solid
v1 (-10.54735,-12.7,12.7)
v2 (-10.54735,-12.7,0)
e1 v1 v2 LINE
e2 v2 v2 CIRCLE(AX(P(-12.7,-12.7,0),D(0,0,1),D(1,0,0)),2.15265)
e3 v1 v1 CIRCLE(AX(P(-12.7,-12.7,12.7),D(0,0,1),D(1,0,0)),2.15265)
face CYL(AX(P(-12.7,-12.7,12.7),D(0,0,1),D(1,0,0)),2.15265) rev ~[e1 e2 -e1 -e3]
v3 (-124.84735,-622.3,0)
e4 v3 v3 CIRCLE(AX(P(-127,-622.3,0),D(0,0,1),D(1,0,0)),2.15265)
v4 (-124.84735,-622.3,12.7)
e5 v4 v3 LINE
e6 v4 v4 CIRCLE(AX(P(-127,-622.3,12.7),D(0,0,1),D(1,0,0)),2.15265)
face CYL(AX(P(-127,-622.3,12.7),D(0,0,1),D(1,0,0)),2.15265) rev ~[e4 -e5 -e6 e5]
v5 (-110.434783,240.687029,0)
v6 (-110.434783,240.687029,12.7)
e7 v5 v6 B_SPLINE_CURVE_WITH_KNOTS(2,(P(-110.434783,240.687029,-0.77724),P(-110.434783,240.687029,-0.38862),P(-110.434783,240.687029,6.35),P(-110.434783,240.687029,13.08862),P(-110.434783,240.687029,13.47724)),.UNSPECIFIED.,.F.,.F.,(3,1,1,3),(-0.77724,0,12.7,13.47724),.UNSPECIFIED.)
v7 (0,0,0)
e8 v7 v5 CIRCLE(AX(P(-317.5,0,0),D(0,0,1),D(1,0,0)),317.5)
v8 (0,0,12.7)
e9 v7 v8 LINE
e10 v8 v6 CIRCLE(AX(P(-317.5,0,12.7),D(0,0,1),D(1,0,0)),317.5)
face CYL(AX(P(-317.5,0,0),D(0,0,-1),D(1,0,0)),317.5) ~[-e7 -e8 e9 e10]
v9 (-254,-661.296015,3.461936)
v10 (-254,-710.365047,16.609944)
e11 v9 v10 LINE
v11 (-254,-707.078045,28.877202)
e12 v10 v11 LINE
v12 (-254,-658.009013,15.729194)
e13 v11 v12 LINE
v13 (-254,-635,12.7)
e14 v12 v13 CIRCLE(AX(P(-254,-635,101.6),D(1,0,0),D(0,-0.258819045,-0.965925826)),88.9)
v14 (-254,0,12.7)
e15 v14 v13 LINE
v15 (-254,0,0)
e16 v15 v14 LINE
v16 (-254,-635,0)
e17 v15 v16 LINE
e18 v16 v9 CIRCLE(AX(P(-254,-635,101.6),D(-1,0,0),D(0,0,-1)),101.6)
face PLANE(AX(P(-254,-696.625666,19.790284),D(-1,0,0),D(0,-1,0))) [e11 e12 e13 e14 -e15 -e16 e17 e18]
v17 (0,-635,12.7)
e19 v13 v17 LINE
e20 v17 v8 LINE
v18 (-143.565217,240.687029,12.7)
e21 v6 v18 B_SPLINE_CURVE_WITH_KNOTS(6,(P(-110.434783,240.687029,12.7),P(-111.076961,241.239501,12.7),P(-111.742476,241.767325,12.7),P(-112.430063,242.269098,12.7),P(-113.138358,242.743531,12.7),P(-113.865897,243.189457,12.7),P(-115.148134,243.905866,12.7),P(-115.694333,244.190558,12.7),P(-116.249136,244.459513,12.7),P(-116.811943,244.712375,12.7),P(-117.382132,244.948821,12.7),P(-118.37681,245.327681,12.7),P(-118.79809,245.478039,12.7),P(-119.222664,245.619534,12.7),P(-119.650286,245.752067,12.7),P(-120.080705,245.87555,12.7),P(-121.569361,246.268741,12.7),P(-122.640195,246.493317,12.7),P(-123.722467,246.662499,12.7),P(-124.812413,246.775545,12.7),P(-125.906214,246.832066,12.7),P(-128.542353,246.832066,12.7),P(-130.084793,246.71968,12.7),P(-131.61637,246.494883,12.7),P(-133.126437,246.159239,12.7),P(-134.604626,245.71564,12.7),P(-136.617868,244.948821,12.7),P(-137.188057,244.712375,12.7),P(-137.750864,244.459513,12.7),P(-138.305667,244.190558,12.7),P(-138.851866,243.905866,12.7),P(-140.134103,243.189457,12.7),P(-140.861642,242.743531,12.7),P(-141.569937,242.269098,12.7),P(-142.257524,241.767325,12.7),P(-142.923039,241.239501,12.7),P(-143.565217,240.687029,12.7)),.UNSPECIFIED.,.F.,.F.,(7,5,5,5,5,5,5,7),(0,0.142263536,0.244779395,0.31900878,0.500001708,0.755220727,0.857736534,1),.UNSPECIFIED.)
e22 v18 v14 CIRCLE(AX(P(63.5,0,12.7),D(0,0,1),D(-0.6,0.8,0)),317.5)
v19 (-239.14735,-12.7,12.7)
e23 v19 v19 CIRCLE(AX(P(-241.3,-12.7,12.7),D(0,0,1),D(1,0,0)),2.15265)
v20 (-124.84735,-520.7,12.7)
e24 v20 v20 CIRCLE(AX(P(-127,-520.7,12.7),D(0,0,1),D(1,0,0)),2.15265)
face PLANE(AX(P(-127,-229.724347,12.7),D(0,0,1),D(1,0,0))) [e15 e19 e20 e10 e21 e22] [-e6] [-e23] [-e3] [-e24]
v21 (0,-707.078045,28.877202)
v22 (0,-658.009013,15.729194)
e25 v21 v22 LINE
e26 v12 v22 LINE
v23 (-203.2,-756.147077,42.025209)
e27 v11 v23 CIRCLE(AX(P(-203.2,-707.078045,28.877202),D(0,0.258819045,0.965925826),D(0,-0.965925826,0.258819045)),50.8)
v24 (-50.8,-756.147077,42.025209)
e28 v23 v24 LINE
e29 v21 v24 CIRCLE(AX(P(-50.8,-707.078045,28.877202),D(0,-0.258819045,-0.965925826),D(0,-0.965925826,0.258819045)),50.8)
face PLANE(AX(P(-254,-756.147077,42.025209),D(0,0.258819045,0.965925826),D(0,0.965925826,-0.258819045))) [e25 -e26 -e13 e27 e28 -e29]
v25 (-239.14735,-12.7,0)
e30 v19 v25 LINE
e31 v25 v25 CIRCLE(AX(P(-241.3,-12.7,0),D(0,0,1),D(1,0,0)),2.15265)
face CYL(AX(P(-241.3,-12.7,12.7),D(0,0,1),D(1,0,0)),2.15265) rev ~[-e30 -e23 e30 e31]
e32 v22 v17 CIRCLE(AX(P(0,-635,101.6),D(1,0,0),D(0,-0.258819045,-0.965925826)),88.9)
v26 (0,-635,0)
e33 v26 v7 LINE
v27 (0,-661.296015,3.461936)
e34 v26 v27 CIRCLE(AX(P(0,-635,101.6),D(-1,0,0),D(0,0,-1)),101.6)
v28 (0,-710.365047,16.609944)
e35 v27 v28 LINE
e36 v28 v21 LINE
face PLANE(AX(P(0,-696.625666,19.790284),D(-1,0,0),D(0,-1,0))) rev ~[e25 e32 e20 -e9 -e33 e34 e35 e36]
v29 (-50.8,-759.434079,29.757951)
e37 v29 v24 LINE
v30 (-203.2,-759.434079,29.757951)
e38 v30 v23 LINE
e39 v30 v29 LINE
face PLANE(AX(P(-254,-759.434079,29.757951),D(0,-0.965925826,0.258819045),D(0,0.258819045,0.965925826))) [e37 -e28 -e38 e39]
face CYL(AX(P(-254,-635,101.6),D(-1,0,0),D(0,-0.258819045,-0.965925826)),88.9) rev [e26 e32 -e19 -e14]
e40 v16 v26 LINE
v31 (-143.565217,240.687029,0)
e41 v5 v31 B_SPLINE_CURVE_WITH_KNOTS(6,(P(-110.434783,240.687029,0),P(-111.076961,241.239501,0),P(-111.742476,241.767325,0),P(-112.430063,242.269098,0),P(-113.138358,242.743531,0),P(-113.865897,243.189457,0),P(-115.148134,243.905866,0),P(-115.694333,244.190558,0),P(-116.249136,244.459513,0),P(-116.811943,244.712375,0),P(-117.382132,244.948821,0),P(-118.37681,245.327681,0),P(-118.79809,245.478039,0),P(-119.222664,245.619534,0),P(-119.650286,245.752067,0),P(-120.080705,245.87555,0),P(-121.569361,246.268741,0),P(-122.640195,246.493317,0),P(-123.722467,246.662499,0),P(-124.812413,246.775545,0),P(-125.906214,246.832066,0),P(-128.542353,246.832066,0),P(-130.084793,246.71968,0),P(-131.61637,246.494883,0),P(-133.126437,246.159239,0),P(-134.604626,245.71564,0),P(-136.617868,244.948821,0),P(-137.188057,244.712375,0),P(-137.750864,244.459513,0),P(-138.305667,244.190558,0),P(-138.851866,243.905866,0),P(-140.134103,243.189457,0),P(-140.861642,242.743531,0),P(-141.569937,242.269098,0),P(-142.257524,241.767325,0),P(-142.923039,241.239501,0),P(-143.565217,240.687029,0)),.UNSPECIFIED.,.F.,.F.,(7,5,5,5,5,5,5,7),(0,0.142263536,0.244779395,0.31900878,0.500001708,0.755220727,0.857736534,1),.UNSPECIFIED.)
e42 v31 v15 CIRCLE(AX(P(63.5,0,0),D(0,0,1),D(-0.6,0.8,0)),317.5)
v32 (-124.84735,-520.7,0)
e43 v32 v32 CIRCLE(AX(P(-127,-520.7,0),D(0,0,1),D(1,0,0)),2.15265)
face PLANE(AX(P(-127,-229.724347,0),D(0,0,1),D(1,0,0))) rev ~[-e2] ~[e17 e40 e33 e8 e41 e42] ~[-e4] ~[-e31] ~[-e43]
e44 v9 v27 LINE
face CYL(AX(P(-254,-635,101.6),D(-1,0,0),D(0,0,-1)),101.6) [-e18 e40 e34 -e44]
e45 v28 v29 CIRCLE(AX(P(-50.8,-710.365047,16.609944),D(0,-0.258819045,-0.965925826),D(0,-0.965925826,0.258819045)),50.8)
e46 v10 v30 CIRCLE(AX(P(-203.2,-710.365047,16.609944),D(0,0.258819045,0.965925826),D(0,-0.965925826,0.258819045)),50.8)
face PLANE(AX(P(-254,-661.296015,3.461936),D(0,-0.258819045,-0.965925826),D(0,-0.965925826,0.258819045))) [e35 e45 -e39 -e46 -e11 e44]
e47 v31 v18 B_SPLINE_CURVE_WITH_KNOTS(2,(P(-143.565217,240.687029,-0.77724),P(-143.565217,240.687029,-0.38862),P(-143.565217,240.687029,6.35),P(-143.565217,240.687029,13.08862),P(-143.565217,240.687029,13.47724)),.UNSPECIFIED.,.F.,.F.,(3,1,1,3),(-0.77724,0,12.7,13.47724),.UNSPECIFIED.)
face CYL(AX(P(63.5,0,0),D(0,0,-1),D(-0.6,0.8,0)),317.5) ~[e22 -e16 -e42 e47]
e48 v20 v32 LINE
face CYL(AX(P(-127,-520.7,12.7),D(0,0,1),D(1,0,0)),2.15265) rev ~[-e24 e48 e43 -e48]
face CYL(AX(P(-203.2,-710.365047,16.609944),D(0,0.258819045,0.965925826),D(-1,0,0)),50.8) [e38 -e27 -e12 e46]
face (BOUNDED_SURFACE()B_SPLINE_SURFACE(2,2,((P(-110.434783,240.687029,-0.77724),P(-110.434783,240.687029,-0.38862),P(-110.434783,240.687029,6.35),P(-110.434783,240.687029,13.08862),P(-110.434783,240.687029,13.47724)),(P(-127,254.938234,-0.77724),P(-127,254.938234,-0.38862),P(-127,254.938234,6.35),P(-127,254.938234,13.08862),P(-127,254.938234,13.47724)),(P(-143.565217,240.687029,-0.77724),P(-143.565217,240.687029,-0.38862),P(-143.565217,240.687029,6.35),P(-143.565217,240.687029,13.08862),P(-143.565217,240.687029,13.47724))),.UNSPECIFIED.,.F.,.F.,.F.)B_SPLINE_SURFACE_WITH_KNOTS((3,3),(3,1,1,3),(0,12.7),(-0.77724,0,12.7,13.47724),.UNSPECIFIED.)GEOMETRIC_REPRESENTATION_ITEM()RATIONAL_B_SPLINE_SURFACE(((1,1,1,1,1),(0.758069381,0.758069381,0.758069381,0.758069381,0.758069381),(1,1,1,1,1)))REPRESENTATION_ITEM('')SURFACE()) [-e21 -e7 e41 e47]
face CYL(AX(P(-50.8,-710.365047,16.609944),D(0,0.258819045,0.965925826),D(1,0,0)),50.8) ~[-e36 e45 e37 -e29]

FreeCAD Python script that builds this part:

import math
import FreeCAD as App
import Part
import Sketcher
Q = App.Units.Quantity


def edges_at(feature, points):
    """Names of the edges that pass closest to the given points."""
    edges = feature.Shape.Edges
    near = lambda p: min(range(len(edges)), key=lambda i: edges[i].distToShape(Part.Vertex(*p))[0])
    return sorted({f"Edge{near(p) + 1}" for p in points})

doc = App.newDocument("Part")
body = doc.addObject("PartDesign::Body", "Body")

# Sketch on XY plane
sketch1 = doc.addObject("Sketcher::SketchObject", "Sketch")
body.addObject(sketch1)
sketch1.AttachmentSupport = (doc.XY_Plane, [""])
sketch1.MapMode = "FlatFace"
sketch1.addGeometry([
    Part.LineSegment(App.Vector(-254, -635, 0), App.Vector(0, -635, 0)),  # 0
    Part.LineSegment(App.Vector(0, -635, 0), App.Vector(0, 0, 0)),  # 1
    Part.ArcOfCircle(Part.Circle(App.Vector(-317.5, 0, 0), App.Vector(0, 0, 1), 317.5), math.radians(0), math.radians(53.130102)),  # 2
    Part.ArcOfCircle(Part.Circle(App.Vector(63.5, 0, 0), App.Vector(0, 0, 1), 317.5), math.radians(126.869898), math.radians(180)),  # 3
    Part.LineSegment(App.Vector(-254, 0, 0), App.Vector(-254, -635, 0)),  # 4
], False)
sketch1.addConstraint([
    Sketcher.Constraint("Coincident", 0, 2, 1, 1),
    Sketcher.Constraint("Tangent", 1, 2, 2, 1),
    Sketcher.Constraint("Coincident", 2, 2, 3, 1),
    Sketcher.Constraint("Tangent", 3, 2, 4, 1),
    Sketcher.Constraint("Coincident", 4, 2, 0, 1),
    Sketcher.Constraint("Horizontal", 0),
    Sketcher.Constraint("Vertical", 1),
    Sketcher.Constraint("Vertical", 4),
    Sketcher.Constraint("Coincident", 1, 2, -1, 1),
    Sketcher.Constraint("Equal", 2, 3),
    Sketcher.Constraint("PointOnObject", 3, 3, -1),
    Sketcher.Constraint("Radius", 2, Q("12.5 in")),
    Sketcher.Constraint("DistanceX", 0, 1, 0, 2, Q("10 in")),
    Sketcher.Constraint("DistanceY", 1, 1, 1, 2, Q("25 in")),
])
pad1 = doc.addObject("PartDesign::Pad", "Pad")
body.addObject(pad1)
pad1.Profile = sketch1
pad1.Length = Q("0.5 in")
doc.recompute()

fillet = doc.addObject("PartDesign::Fillet", "Fillet")
body.addObject(fillet)
fillet.Base = (pad1, edges_at(pad1, [(-127, 254, 6.35)]))
fillet.Radius = Q("1 in")

# Sketch on YZ plane
sketch2 = doc.addObject("Sketcher::SketchObject", "Sketch001")
body.addObject(sketch2)
sketch2.AttachmentSupport = (doc.YZ_Plane, [""])
sketch2.MapMode = "FlatFace"
sketch2.AttachmentOffset = App.Placement(App.Vector(0, 0, -10 * 25.4), App.Rotation())
sketch2.addGeometry([
    Part.ArcOfCircle(Part.Circle(App.Vector(-635, 101.6, 0), App.Vector(0, 0, 1), 88.9), math.radians(-105), math.radians(-90)),  # 0
    Part.LineSegment(App.Vector(-635, 12.7, 0), App.Vector(-635, 0, 0)),  # 1
    Part.ArcOfCircle(Part.Circle(App.Vector(-635, 101.6, 0), App.Vector(0, 0, 1), 101.6), math.radians(-105), math.radians(-90)),  # 2
    Part.LineSegment(App.Vector(-661.296015, 3.461936, 0), App.Vector(-759.434079, 29.757951, 0)),  # 3
    Part.LineSegment(App.Vector(-759.434079, 29.757951, 0), App.Vector(-756.147077, 42.025209, 0)),  # 4
    Part.LineSegment(App.Vector(-756.147077, 42.025209, 0), App.Vector(-658.009013, 15.729194, 0)),  # 5
], False)
sketch2.addConstraint([
    Sketcher.Constraint("Coincident", 0, 2, 1, 1),
    Sketcher.Constraint("Coincident", 1, 2, 2, 2),
    Sketcher.Constraint("Tangent", 2, 1, 3, 1),
    Sketcher.Constraint("Coincident", 3, 2, 4, 1),
    Sketcher.Constraint("Coincident", 4, 2, 5, 1),
    Sketcher.Constraint("Tangent", 5, 2, 0, 1),
    Sketcher.Constraint("Vertical", 1),
    Sketcher.Constraint("Coincident", 2, 3, 0, 3),
    Sketcher.Constraint("PointOnObject", 1, 2, -1),
    Sketcher.Constraint("Perpendicular", 3, 4),
    Sketcher.Constraint("Perpendicular", 4, 5),
    Sketcher.Constraint("Vertical", 2, 3, 0, 2),
    Sketcher.Constraint("Radius", 2, Q("4 in")),
    Sketcher.Constraint("Radius", 0, Q("3.5 in")),
    Sketcher.Constraint("Distance", 3, Q("4 in")),
    Sketcher.Constraint("DistanceX", 0, 3, -1, 1, Q("25 in")),
    Sketcher.Constraint("Angle", 3, Q("165 deg")),
])
pad2 = doc.addObject("PartDesign::Pad", "Pad001")
body.addObject(pad2)
pad2.Profile = sketch2
pad2.Length = Q("10 in")
doc.recompute()

fillet2 = doc.addObject("PartDesign::Fillet", "Fillet001")
body.addObject(fillet2)
fillet2.Base = (pad2, edges_at(pad2, [(0, -757.791, 35.892), (-254, -757.791, 35.892)]))
fillet2.Radius = Q("2 in")

# Sketch on XY plane
sketch3 = doc.addObject("Sketcher::SketchObject", "Sketch002")
body.addObject(sketch3)
sketch3.AttachmentSupport = (doc.XY_Plane, [""])
sketch3.MapMode = "FlatFace"
sketch3.AttachmentOffset = App.Placement(App.Vector(0, 0, 0.5 * 25.4), App.Rotation())
sketch3.addGeometry([
    Part.Circle(App.Vector(-127, -520.7, 0), App.Vector(0, 0, 1), 2.15265),
    Part.Circle(App.Vector(-127, -622.3, 0), App.Vector(0, 0, 1), 2.15265),
    Part.Circle(App.Vector(-241.3, -12.7, 0), App.Vector(0, 0, 1), 2.15265),
    Part.Circle(App.Vector(-12.7, -12.7, 0), App.Vector(0, 0, 1), 2.15265),
], False)
sketch3.addConstraint([
    Sketcher.Constraint("Equal", 0, 1),
    Sketcher.Constraint("Equal", 1, 2),
    Sketcher.Constraint("Equal", 2, 3),
    Sketcher.Constraint("Horizontal", 2, 3, 3, 3),
    Sketcher.Constraint("Vertical", 0, 3, 1, 3),
    Sketcher.Constraint("DistanceX", 0, 3, -1, 1, Q("5 in")),
    Sketcher.Constraint("DistanceY", 1, 3, 0, 3, Q("4 in")),
    Sketcher.Constraint("DistanceY", 0, 3, 2, 3, Q("20 in")),
    Sketcher.Constraint("DistanceX", 2, 3, 3, 3, Q("9 in")),
    Sketcher.Constraint("Diameter", 0, Q("0.1695 in")),
    Sketcher.Constraint("DistanceY", 0, 3, -1, 1, Q("20.5 in")),
    Sketcher.Constraint("DistanceX", 2, 3, -1, 1, Q("9.5 in")),
])
pocket1 = doc.addObject("PartDesign::Pocket", "Pocket")
body.addObject(pocket1)
pocket1.Profile = sketch3
pocket1.Type = "ThroughAll"

doc.recompute()
